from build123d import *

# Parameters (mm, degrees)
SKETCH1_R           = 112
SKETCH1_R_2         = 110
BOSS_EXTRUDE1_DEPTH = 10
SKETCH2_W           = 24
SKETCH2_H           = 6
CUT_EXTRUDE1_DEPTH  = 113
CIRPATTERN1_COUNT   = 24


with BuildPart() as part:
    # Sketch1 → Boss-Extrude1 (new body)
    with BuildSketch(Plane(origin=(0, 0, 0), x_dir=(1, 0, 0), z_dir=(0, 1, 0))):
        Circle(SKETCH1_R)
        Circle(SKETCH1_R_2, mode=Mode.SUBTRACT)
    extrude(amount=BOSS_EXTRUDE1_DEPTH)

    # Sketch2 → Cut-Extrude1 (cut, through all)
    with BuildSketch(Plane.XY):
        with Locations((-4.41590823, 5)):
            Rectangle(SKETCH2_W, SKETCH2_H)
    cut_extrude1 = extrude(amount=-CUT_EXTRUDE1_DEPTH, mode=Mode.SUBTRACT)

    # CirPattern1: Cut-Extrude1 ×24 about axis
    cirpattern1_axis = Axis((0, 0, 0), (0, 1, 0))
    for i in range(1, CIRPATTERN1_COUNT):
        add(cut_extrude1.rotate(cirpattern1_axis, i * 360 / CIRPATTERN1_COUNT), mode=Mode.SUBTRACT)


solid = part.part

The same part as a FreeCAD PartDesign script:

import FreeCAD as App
import Part
import Sketcher

V = App.Vector
Q = App.Units.Quantity

doc = App.newDocument("Part")
body = doc.addObject("PartDesign::Body", "Body")

sketch1 = body.newObject("Sketcher::SketchObject", "Sketch")
sketch1.AttachmentSupport = (doc.getObject("XZ_Plane"), [""])
sketch1.MapMode = "FlatFace"
sketch1.addGeometry(Part.Circle(V(0, 0, 0), V(0, 0, 1), 112), False)
sketch1.addGeometry(Part.Circle(V(0, 0, 0), V(0, 0, 1), 110), False)
sketch1.addConstraint(Sketcher.Constraint("Coincident", 0, 3, -1, 1))
sketch1.addConstraint(Sketcher.Constraint("Coincident", 1, 3, -1, 1))
sketch1.addConstraint(Sketcher.Constraint("Diameter", 0, Q("224 mm")))
sketch1.addConstraint(Sketcher.Constraint("Diameter", 1, Q("220 mm")))
pad1 = body.newObject("PartDesign::Pad", "Pad")
pad1.Profile = sketch1
pad1.Length = 10
pad1.Reversed = True

sketch2 = body.newObject("Sketcher::SketchObject", "Sketch001")
sketch2.AttachmentSupport = (doc.getObject("XY_Plane"), [""])
sketch2.MapMode = "FlatFace"
sketch2.addGeometry(Part.LineSegment(V(-16, 8, 0), V(-16, 2, 0)), False)
sketch2.addGeometry(Part.LineSegment(V(-16, 2, 0), V(8, 2, 0)), False)
sketch2.addGeometry(Part.LineSegment(V(8, 2, 0), V(8, 8, 0)), False)
sketch2.addGeometry(Part.LineSegment(V(8, 8, 0), V(-16, 8, 0)), False)
sketch2.addConstraint(Sketcher.Constraint("Coincident", 0, 2, 1, 1))
sketch2.addConstraint(Sketcher.Constraint("Coincident", 1, 2, 2, 1))
sketch2.addConstraint(Sketcher.Constraint("Coincident", 2, 2, 3, 1))
sketch2.addConstraint(Sketcher.Constraint("Coincident", 3, 2, 0, 1))
sketch2.addConstraint(Sketcher.Constraint("Vertical", 0))
sketch2.addConstraint(Sketcher.Constraint("Horizontal", 1))
sketch2.addConstraint(Sketcher.Constraint("Vertical", 2))
sketch2.addConstraint(Sketcher.Constraint("Horizontal", 3))
sketch2.addConstraint(Sketcher.Constraint("DistanceX", 1, 1, 1, 2, Q("24 mm")))
sketch2.addConstraint(Sketcher.Constraint("DistanceY", 0, 2, 0, 1, Q("6 mm")))
sketch2.addConstraint(Sketcher.Constraint("DistanceY", -1, 1, 0, 2, Q("2 mm")))
sketch2.addConstraint(Sketcher.Constraint("DistanceX", 0, 2, -1, 1, Q("16.415908 mm")))
pocket1 = body.newObject("PartDesign::Pocket", "Pocket")
pocket1.Profile = sketch2
pocket1.Type = "ThroughAll"
doc.recompute()

polarpattern = body.newObject("PartDesign::PolarPattern", "PolarPattern")
polarpattern.Originals = [pocket1]
polarpattern.Axis = (doc.getObject("Y_Axis"), [""])
polarpattern.Angle = 360
polarpattern.Occurrences = 24
body.Tip = polarpattern

doc.recompute()
